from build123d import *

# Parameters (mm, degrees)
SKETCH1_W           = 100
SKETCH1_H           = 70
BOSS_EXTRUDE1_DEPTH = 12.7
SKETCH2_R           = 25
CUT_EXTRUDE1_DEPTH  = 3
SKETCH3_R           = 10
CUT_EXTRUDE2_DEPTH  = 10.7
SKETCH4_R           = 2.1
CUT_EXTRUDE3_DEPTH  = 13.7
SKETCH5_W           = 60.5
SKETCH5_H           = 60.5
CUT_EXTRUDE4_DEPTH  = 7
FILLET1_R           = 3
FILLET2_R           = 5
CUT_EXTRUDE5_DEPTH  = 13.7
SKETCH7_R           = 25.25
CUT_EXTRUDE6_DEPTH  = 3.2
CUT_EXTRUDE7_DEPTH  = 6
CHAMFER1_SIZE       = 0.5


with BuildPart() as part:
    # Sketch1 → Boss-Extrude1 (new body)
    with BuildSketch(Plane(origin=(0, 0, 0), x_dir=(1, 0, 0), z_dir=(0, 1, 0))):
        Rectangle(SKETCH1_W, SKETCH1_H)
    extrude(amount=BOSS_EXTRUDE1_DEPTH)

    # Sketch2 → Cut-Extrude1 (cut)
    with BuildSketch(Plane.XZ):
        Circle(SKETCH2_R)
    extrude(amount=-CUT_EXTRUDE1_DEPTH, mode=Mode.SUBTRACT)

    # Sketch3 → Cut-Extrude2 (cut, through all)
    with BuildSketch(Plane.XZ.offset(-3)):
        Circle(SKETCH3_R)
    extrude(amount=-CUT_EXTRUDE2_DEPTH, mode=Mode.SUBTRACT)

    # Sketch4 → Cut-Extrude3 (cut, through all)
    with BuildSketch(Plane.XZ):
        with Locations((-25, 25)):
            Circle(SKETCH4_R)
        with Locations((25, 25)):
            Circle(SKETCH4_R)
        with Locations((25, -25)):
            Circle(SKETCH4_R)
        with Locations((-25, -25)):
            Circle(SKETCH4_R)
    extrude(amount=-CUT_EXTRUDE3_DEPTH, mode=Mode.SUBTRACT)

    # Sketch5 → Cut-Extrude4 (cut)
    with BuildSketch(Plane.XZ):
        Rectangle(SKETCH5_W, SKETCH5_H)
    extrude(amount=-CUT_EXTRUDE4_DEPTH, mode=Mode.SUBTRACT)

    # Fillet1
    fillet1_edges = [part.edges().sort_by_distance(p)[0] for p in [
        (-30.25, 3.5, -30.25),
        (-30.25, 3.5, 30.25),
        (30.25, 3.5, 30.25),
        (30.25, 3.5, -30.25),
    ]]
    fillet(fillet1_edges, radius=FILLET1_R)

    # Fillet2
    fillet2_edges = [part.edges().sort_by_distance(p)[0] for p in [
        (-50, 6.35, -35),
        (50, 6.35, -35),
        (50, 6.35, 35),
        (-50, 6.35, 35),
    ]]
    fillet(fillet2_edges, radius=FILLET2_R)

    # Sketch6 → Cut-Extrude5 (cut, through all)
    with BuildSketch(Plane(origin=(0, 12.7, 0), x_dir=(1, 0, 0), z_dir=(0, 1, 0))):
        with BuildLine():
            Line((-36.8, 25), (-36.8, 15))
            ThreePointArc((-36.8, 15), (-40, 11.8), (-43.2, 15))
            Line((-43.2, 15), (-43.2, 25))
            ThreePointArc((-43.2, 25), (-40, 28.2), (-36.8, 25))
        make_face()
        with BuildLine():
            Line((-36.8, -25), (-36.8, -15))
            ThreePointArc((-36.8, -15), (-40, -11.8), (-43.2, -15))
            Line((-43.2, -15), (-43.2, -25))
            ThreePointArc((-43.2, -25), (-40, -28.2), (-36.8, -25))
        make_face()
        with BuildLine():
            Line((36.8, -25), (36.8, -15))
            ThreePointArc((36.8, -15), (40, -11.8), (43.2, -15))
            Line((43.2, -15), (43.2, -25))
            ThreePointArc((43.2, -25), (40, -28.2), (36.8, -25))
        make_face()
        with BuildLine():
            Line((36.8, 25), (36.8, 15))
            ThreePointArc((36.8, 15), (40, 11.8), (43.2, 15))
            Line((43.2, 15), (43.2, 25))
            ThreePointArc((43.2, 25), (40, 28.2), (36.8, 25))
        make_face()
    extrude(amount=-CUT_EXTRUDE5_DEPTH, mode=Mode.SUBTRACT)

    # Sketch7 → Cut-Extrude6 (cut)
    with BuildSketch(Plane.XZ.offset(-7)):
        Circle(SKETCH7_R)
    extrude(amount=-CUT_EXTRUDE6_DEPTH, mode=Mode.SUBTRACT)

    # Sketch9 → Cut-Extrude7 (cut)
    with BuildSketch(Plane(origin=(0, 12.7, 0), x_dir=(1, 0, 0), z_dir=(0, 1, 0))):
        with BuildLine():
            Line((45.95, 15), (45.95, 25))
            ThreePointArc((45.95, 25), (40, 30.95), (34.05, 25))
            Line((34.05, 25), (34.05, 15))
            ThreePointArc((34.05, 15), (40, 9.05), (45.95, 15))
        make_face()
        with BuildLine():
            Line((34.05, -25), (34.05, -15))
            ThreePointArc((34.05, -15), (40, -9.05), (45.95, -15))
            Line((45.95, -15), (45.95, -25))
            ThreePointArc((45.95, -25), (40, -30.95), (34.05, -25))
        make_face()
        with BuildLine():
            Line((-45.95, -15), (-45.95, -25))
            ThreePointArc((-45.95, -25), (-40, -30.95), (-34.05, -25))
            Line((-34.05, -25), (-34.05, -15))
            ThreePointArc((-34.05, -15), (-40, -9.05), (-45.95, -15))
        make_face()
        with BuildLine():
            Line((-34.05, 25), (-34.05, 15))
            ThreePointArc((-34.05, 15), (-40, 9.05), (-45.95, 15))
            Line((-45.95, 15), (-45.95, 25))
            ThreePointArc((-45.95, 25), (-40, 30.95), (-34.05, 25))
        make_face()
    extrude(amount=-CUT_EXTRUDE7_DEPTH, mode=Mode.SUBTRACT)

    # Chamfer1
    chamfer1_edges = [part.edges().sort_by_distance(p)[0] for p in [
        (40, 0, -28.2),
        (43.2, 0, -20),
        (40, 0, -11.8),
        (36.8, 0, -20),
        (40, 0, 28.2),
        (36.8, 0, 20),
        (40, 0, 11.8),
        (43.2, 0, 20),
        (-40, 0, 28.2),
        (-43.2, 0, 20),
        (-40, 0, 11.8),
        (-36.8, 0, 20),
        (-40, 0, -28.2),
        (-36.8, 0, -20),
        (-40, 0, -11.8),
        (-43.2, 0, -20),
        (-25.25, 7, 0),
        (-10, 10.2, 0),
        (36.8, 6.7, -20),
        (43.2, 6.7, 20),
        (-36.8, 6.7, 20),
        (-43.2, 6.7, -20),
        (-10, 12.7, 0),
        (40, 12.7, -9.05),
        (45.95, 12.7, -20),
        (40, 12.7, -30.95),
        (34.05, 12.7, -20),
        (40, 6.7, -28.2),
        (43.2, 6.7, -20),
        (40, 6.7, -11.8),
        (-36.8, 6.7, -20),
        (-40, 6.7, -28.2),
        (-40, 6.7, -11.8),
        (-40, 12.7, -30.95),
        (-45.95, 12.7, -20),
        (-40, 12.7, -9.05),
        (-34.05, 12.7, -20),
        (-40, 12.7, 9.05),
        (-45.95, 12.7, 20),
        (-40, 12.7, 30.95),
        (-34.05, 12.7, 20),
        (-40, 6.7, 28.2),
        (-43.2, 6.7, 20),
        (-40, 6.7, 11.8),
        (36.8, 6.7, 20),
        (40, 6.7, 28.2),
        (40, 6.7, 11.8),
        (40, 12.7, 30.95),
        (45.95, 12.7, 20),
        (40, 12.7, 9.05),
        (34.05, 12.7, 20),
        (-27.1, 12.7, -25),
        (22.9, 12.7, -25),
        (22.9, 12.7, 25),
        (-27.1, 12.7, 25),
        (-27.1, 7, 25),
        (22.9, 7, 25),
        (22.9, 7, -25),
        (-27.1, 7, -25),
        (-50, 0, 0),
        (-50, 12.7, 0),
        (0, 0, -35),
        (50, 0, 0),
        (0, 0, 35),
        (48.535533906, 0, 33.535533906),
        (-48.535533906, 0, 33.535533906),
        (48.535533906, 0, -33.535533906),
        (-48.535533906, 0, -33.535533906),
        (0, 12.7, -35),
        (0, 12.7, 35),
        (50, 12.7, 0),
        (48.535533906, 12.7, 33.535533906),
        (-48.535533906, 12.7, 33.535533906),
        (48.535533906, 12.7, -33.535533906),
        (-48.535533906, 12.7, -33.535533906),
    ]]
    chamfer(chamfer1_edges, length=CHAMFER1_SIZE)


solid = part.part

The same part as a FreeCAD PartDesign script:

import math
import FreeCAD as App
import Part
import Sketcher

V = App.Vector
Q = App.Units.Quantity


def edges_at(feature, points):
    """Names of the edges that pass closest to the given points."""
    edges = feature.Shape.Edges
    near = lambda p: min(range(len(edges)), key=lambda i: edges[i].distToShape(Part.Vertex(*p))[0])
    return sorted({f"Edge{near(p) + 1}" for p in points})


def add_polygon(sketch, points):
    """Adds a closed chain of lines whose ends are joined by coincident constraints."""
    first, n = sketch.GeometryCount, len(points)
    for a, b in zip(points, points[1:] + points[:1]):
        sketch.addGeometry(Part.LineSegment(App.Vector(*a, 0), App.Vector(*b, 0)), False)
    for i in range(n):
        sketch.addConstraint(Sketcher.Constraint("Coincident", first + i, 2, first + (i + 1) % n, 1))

doc = App.newDocument("Part")
params = doc.addObject("Spreadsheet::Sheet", "Params")
for row, (alias, value) in enumerate([
    ("sketch1_width", "100 mm"),
    ("sketch1_height", "70 mm"),
    ("pad1_length", "12.7 mm"),
    ("sketch2_diameter", "50 mm"),
    ("pocket1_length", "3 mm"),
    ("sketch3_diameter", "20 mm"),
    ("sketch4_diameter", "4.2 mm"),
    ("sketch5_width", "60.5 mm"),
    ("pocket4_length", "7 mm"),
    ("fillet_radius", "3 mm"),
    ("fillet2_radius", "5 mm"),
    ("sketch6_radius", "3.2 mm"),
    ("sketch6_height", "10 mm"),
    ("sketch7_diameter", "50.5 mm"),
    ("pocket6_length", "3.2 mm"),
    ("sketch8_height", "10 mm"),
    ("sketch8_radius", "5.95 mm"),
    ("pocket7_length", "6 mm"),
    ("chamfer_size", "0.5 mm"),
], start=1):
    params.set(f"A{row}", alias)
    params.set(f"B{row}", "=" + value)
    params.setAlias(f"B{row}", alias)

body = doc.addObject("PartDesign::Body", "Body")

sketch1 = body.newObject("Sketcher::SketchObject", "Sketch")
sketch1.AttachmentSupport = (doc.getObject("XZ_Plane"), [""])
sketch1.MapMode = "FlatFace"
add_polygon(sketch1, [(-50, -35), (-50, 35), (50, 35), (50, -35)])
sketch1.addConstraint([
    Sketcher.Constraint("Vertical", 0),
    Sketcher.Constraint("Horizontal", 1),
    Sketcher.Constraint("Vertical", 2),
    Sketcher.Constraint("Horizontal", 3),
    Sketcher.Constraint("Symmetric", 0, 2, 2, 2, -1, 1),
    Sketcher.Constraint("DistanceX", 1, 1, 1, 2, Q("100 mm")),
    Sketcher.Constraint("DistanceY", 0, 1, 0, 2, Q("70 mm")),
])
sketch1.setExpression("Constraints[9]", "Params.sketch1_width")
sketch1.setExpression("Constraints[10]", "Params.sketch1_height")
pad1 = body.newObject("PartDesign::Pad", "Pad")
pad1.Profile = sketch1
pad1.setExpression("Length", "Params.pad1_length")
pad1.Reversed = True

sketch2 = body.newObject("Sketcher::SketchObject", "Sketch001")
sketch2.AttachmentSupport = (doc.getObject("XZ_Plane"), [""])
sketch2.MapMode = "FlatFace"
sketch2.addGeometry(Part.Circle(V(0, 0, 0), V(0, 0, 1), 25), False)
sketch2.addConstraint([
    Sketcher.Constraint("Coincident", 0, 3, -1, 1),
    Sketcher.Constraint("Diameter", 0, Q("50 mm")),
])
sketch2.setExpression("Constraints[1]", "Params.sketch2_diameter")
pocket1 = body.newObject("PartDesign::Pocket", "Pocket")
pocket1.Profile = sketch2
pocket1.setExpression("Length", "Params.pocket1_length")

sketch3 = body.newObject("Sketcher::SketchObject", "Sketch002")
sketch3.AttachmentSupport = (doc.getObject("XZ_Plane"), [""])
sketch3.MapMode = "FlatFace"
sketch3.AttachmentOffset = App.Placement(V(0, 0, -3), App.Rotation())
sketch3.addGeometry(Part.Circle(V(0, 0, 0), V(0, 0, 1), 10), False)
sketch3.addConstraint([
    Sketcher.Constraint("Coincident", 0, 3, -1, 1),
    Sketcher.Constraint("Diameter", 0, Q("20 mm")),
])
sketch3.setExpression("Constraints[1]", "Params.sketch3_diameter")
pocket2 = body.newObject("PartDesign::Pocket", "Pocket001")
pocket2.Profile = sketch3
pocket2.Type = "ThroughAll"

sketch4 = body.newObject("Sketcher::SketchObject", "Sketch003")
sketch4.AttachmentSupport = (doc.getObject("XZ_Plane"), [""])
sketch4.MapMode = "FlatFace"
sketch4.addGeometry([
    Part.Circle(V(-25, 25, 0), V(0, 0, 1), 2.1),
    Part.Circle(V(25, 25, 0), V(0, 0, 1), 2.1),
    Part.Circle(V(25, -25, 0), V(0, 0, 1), 2.1),
    Part.Circle(V(-25, -25, 0), V(0, 0, 1), 2.1),
], False)
sketch4.addConstraint([
    Sketcher.Constraint("Equal", 0, 1),
    Sketcher.Constraint("Equal", 1, 2),
    Sketcher.Constraint("Equal", 2, 3),
    Sketcher.Constraint("Symmetric", 0, 3, 2, 3, -1, 1),
    Sketcher.Constraint("Symmetric", 1, 3, 3, 3, -1, 1),
    Sketcher.Constraint("Symmetric", 0, 3, 1, 3, -2),
    Sketcher.Constraint("Diameter", 0, Q("4.2 mm")),
    Sketcher.Constraint("DistanceX", 0, 3, -1, 1, Q("25 mm")),
    Sketcher.Constraint("DistanceY", -1, 1, 0, 3, Q("25 mm")),
])
sketch4.setExpression("Constraints[6]", "Params.sketch4_diameter")
pocket3 = body.newObject("PartDesign::Pocket", "Pocket002")
pocket3.Profile = sketch4
pocket3.Type = "ThroughAll"

sketch5 = body.newObject("Sketcher::SketchObject", "Sketch004")
sketch5.AttachmentSupport = (doc.getObject("XZ_Plane"), [""])
sketch5.MapMode = "FlatFace"
add_polygon(sketch5, [(-30, 30), (-30, -30), (30, -30), (30, 30)])
sketch5.addConstraint([
    Sketcher.Constraint("Vertical", 0),
    Sketcher.Constraint("Horizontal", 1),
    Sketcher.Constraint("Vertical", 2),
    Sketcher.Constraint("Horizontal", 3),
    Sketcher.Constraint("Symmetric", 0, 2, 2, 2, -1, 1),
    Sketcher.Constraint("Equal", 3, 0),
    Sketcher.Constraint("DistanceX", 1, 1, 1, 2, Q("60.5 mm")),
])
sketch5.setExpression("Constraints[10]", "Params.sketch5_width")
pocket4 = body.newObject("PartDesign::Pocket", "Pocket003")
pocket4.Profile = sketch5
pocket4.setExpression("Length", "Params.pocket4_length")
doc.recompute()

fillet = body.newObject("PartDesign::Fillet", "Fillet")
fillet.Base = (pocket4, edges_at(pocket4, [
    (-30.25, 3.5, -30.25),
    (-30.25, 3.5, 30.25),
    (30.25, 3.5, 30.25),
    (30.25, 3.5, -30.25),
]))
fillet.setExpression("Radius", "Params.fillet_radius")
doc.recompute()

fillet2 = body.newObject("PartDesign::Fillet", "Fillet001")
fillet2.Base = (fillet, edges_at(fillet, [
    (-50, 6.35, -35),
    (50, 6.35, -35),
    (50, 6.35, 35),
    (-50, 6.35, 35),
]))
fillet2.setExpression("Radius", "Params.fillet2_radius")

sketch6 = body.newObject("Sketcher::SketchObject", "Sketch005")
sketch6.AttachmentSupport = (doc.getObject("XZ_Plane"), [""])
sketch6.MapMode = "FlatFace"
sketch6.AttachmentOffset = App.Placement(V(0, 0, -12.7), App.Rotation())
sketch6.addGeometry([
    Part.LineSegment(V(-36.8, -15, 0), V(-36.8, -25, 0)),
    Part.ArcOfCircle(Part.Circle(V(-40, -25, 0), V(0, 0, 1), 3.2), math.radians(180), math.radians(360)),
    Part.LineSegment(V(-43.2, -25, 0), V(-43.2, -15, 0)),
    Part.ArcOfCircle(Part.Circle(V(-40, -15, 0), V(0, 0, 1), 3.2), math.radians(0), math.radians(180)),
    Part.LineSegment(V(-36.8, 25, 0), V(-36.8, 15, 0)),
    Part.ArcOfCircle(Part.Circle(V(-40, 15, 0), V(0, 0, 1), 3.2), math.radians(180), math.radians(360)),
    Part.LineSegment(V(-43.2, 15, 0), V(-43.2, 25, 0)),
    Part.ArcOfCircle(Part.Circle(V(-40, 25, 0), V(0, 0, 1), 3.2), math.radians(0), math.radians(180)),
    Part.LineSegment(V(36.8, 15, 0), V(36.8, 25, 0)),
    Part.ArcOfCircle(Part.Circle(V(40, 25, 0), V(0, 0, 1), 3.2), math.radians(0), math.radians(180)),
    Part.LineSegment(V(43.2, 25, 0), V(43.2, 15, 0)),
    Part.ArcOfCircle(Part.Circle(V(40, 15, 0), V(0, 0, 1), 3.2), math.radians(180), math.radians(360)),
    Part.LineSegment(V(36.8, -25, 0), V(36.8, -15, 0)),
    Part.ArcOfCircle(Part.Circle(V(40, -15, 0), V(0, 0, 1), 3.2), math.radians(0), math.radians(180)),
    Part.LineSegment(V(43.2, -15, 0), V(43.2, -25, 0)),
    Part.ArcOfCircle(Part.Circle(V(40, -25, 0), V(0, 0, 1), 3.2), math.radians(180), math.radians(360)),
], False)
sketch6.addConstraint([
    Sketcher.Constraint("Tangent", 0, 2, 1, 2),
    Sketcher.Constraint("Tangent", 1, 1, 2, 1),
    Sketcher.Constraint("Tangent", 2, 2, 3, 2),
    Sketcher.Constraint("Tangent", 3, 1, 0, 1),
    Sketcher.Constraint("Tangent", 4, 2, 5, 2),
    Sketcher.Constraint("Tangent", 5, 1, 6, 1),
    Sketcher.Constraint("Tangent", 6, 2, 7, 2),
    Sketcher.Constraint("Tangent", 7, 1, 4, 1),
    Sketcher.Constraint("Tangent", 8, 2, 9, 2),
    Sketcher.Constraint("Tangent", 9, 1, 10, 1),
    Sketcher.Constraint("Tangent", 10, 2, 11, 2),
    Sketcher.Constraint("Tangent", 11, 1, 8, 1),
    Sketcher.Constraint("Tangent", 12, 2, 13, 2),
    Sketcher.Constraint("Tangent", 13, 1, 14, 1),
    Sketcher.Constraint("Tangent", 14, 2, 15, 2),
    Sketcher.Constraint("Tangent", 15, 1, 12, 1),
    Sketcher.Constraint("Vertical", 0),
    Sketcher.Constraint("Vertical", 2),
    Sketcher.Constraint("Vertical", 4),
    Sketcher.Constraint("Vertical", 6),
    Sketcher.Constraint("Vertical", 8),
    Sketcher.Constraint("Vertical", 10),
    Sketcher.Constraint("Vertical", 12),
    Sketcher.Constraint("Vertical", 14),
    Sketcher.Constraint("Equal", 3, 5),
    Sketcher.Constraint("Equal", 7, 9),
    Sketcher.Constraint("Equal", 11, 13),
    Sketcher.Constraint("Symmetric", 1, 3, 9, 3, -1, 1),
    Sketcher.Constraint("Symmetric", 5, 3, 13, 3, -1, 1),
    Sketcher.Constraint("Symmetric", 7, 3, 9, 3, -2),
    Sketcher.Constraint("Horizontal", 5, 3, 11, 3),
    Sketcher.Constraint("Horizontal", 3, 3, 13, 3),
    Sketcher.Constraint("Horizontal", 1, 3, 15, 3),
    Sketcher.Constraint("Radius", 1, Q("3.2 mm")),
    Sketcher.Constraint("DistanceY", 0, 2, 0, 1, Q("10 mm")),
    Sketcher.Constraint("DistanceX", 1, 3, -1, 1, Q("40 mm")),
    Sketcher.Constraint("DistanceY", 1, 3, -1, 1, Q("25 mm")),
])
sketch6.setExpression("Constraints[33]", "Params.sketch6_radius")
sketch6.setExpression("Constraints[34]", "Params.sketch6_height")
pocket5 = body.newObject("PartDesign::Pocket", "Pocket004")
pocket5.Profile = sketch6
pocket5.Type = "ThroughAll"
pocket5.Reversed = True

sketch7 = body.newObject("Sketcher::SketchObject", "Sketch006")
sketch7.AttachmentSupport = (doc.getObject("XZ_Plane"), [""])
sketch7.MapMode = "FlatFace"
sketch7.AttachmentOffset = App.Placement(V(0, 0, -7), App.Rotation())
sketch7.addGeometry(Part.Circle(V(0, 0, 0), V(0, 0, 1), 25), False)
sketch7.addConstraint([
    Sketcher.Constraint("Coincident", 0, 3, -1, 1),
    Sketcher.Constraint("Diameter", 0, Q("50.5 mm")),
])
sketch7.setExpression("Constraints[1]", "Params.sketch7_diameter")
pocket6 = body.newObject("PartDesign::Pocket", "Pocket005")
pocket6.Profile = sketch7
pocket6.setExpression("Length", "Params.pocket6_length")

sketch8 = body.newObject("Sketcher::SketchObject", "Sketch007")
sketch8.AttachmentSupport = (doc.getObject("XZ_Plane"), [""])
sketch8.MapMode = "FlatFace"
sketch8.AttachmentOffset = App.Placement(V(0, 0, -12.7), App.Rotation())
sketch8.addGeometry([
    Part.LineSegment(V(46, -15, 0), V(46, -25, 0)),
    Part.ArcOfCircle(Part.Circle(V(40, -25, 0), V(0, 0, 1), 6), math.radians(180), math.radians(360)),
    Part.LineSegment(V(34, -25, 0), V(34, -15, 0)),
    Part.ArcOfCircle(Part.Circle(V(40, -15, 0), V(0, 0, 1), 6), math.radians(0), math.radians(180)),
    Part.LineSegment(V(34, 15, 0), V(34, 25, 0)),
    Part.ArcOfCircle(Part.Circle(V(40, 25, 0), V(0, 0, 1), 6), math.radians(0), math.radians(180)),
    Part.LineSegment(V(46, 25, 0), V(46, 15, 0)),
    Part.ArcOfCircle(Part.Circle(V(40, 15, 0), V(0, 0, 1), 6), math.radians(180), math.radians(360)),
    Part.LineSegment(V(-46, 15, 0), V(-46, 25, 0)),
    Part.ArcOfCircle(Part.Circle(V(-40, 25, 0), V(0, 0, 1), 6), math.radians(0), math.radians(180)),
    Part.LineSegment(V(-34, 25, 0), V(-34, 15, 0)),
    Part.ArcOfCircle(Part.Circle(V(-40, 15, 0), V(0, 0, 1), 6), math.radians(180), math.radians(360)),
    Part.LineSegment(V(-34, -15, 0), V(-34, -25, 0)),
    Part.ArcOfCircle(Part.Circle(V(-40, -25, 0), V(0, 0, 1), 6), math.radians(180), math.radians(360)),
    Part.LineSegment(V(-46, -25, 0), V(-46, -15, 0)),
    Part.ArcOfCircle(Part.Circle(V(-40, -15, 0), V(0, 0, 1), 6), math.radians(0), math.radians(180)),
], False)
sketch8.addConstraint([
    Sketcher.Constraint("Tangent", 0, 2, 1, 2),
    Sketcher.Constraint("Tangent", 1, 1, 2, 1),
    Sketcher.Constraint("Tangent", 2, 2, 3, 2),
    Sketcher.Constraint("Tangent", 3, 1, 0, 1),
    Sketcher.Constraint("Tangent", 4, 2, 5, 2),
    Sketcher.Constraint("Tangent", 5, 1, 6, 1),
    Sketcher.Constraint("Tangent", 6, 2, 7, 2),
    Sketcher.Constraint("Tangent", 7, 1, 4, 1),
    Sketcher.Constraint("Tangent", 8, 2, 9, 2),
    Sketcher.Constraint("Tangent", 9, 1, 10, 1),
    Sketcher.Constraint("Tangent", 10, 2, 11, 2),
    Sketcher.Constraint("Tangent", 11, 1, 8, 1),
    Sketcher.Constraint("Tangent", 12, 2, 13, 2),
    Sketcher.Constraint("Tangent", 13, 1, 14, 1),
    Sketcher.Constraint("Tangent", 14, 2, 15, 2),
    Sketcher.Constraint("Tangent", 15, 1, 12, 1),
    Sketcher.Constraint("Vertical", 0),
    Sketcher.Constraint("Vertical", 2),
    Sketcher.Constraint("Vertical", 4),
    Sketcher.Constraint("Vertical", 6),
    Sketcher.Constraint("Vertical", 8),
    Sketcher.Constraint("Vertical", 10),
    Sketcher.Constraint("Vertical", 12),
    Sketcher.Constraint("Vertical", 14),
    Sketcher.Constraint("Equal", 3, 5),
    Sketcher.Constraint("Equal", 7, 9),
    Sketcher.Constraint("Equal", 11, 13),
    Sketcher.Constraint("Symmetric", 1, 3, 9, 3, -1, 1),
    Sketcher.Constraint("Symmetric", 5, 3, 13, 3, -1, 1),
    Sketcher.Constraint("Symmetric", 5, 3, 9, 3, -2),
    Sketcher.Constraint("Horizontal", 7, 3, 11, 3),
    Sketcher.Constraint("Horizontal", 3, 3, 15, 3),
    Sketcher.Constraint("Equal", 2, 4),
    Sketcher.Constraint("DistanceY", 0, 2, 0, 1, Q("10 mm")),
    Sketcher.Constraint("Radius", 1, Q("5.95 mm")),
    Sketcher.Constraint("DistanceX", -1, 1, 1, 3, Q("40 mm")),
    Sketcher.Constraint("DistanceY", 1, 3, -1, 1, Q("25 mm")),
])
sketch8.setExpression("Constraints[33]", "Params.sketch8_height")
sketch8.setExpression("Constraints[34]", "Params.sketch8_radius")
pocket7 = body.newObject("PartDesign::Pocket", "Pocket006")
pocket7.Profile = sketch8
pocket7.setExpression("Length", "Params.pocket7_length")
pocket7.Reversed = True
doc.recompute()

chamfer = body.newObject("PartDesign::Chamfer", "Chamfer")
chamfer.Base = (pocket7, edges_at(pocket7, [
    (40, 0, -28.2),
    (43.2, 0, -20),
    (40, 0, -11.8),
    (36.8, 0, -20),
    (40, 0, 28.2),
    (36.8, 0, 20),
    (40, 0, 11.8),
    (43.2, 0, 20),
    (-40, 0, 28.2),
    (-43.2, 0, 20),
    (-40, 0, 11.8),
    (-36.8, 0, 20),
    (-40, 0, -28.2),
    (-36.8, 0, -20),
    (-40, 0, -11.8),
    (-43.2, 0, -20),
    (-25.25, 7, 0),
    (-10, 10.2, 0),
    (36.8, 6.7, -20),
    (43.2, 6.7, 20),
    (-36.8, 6.7, 20),
    (-43.2, 6.7, -20),
    (-10, 12.7, 0),
    (40, 12.7, -9.05),
    (45.95, 12.7, -20),
    (40, 12.7, -30.95),
    (34.05, 12.7, -20),
    (40, 6.7, -28.2),
    (43.2, 6.7, -20),
    (40, 6.7, -11.8),
    (-36.8, 6.7, -20),
    (-40, 6.7, -28.2),
    (-40, 6.7, -11.8),
    (-40, 12.7, -30.95),
    (-45.95, 12.7, -20),
    (-40, 12.7, -9.05),
    (-34.05, 12.7, -20),
    (-40, 12.7, 9.05),
    (-45.95, 12.7, 20),
    (-40, 12.7, 30.95),
    (-34.05, 12.7, 20),
    (-40, 6.7, 28.2),
    (-43.2, 6.7, 20),
    (-40, 6.7, 11.8),
    (36.8, 6.7, 20),
    (40, 6.7, 28.2),
    (40, 6.7, 11.8),
    (40, 12.7, 30.95),
    (45.95, 12.7, 20),
    (40, 12.7, 9.05),
    (34.05, 12.7, 20),
    (-27.1, 12.7, -25),
    (22.9, 12.7, -25),
    (22.9, 12.7, 25),
    (-27.1, 12.7, 25),
    (-27.1, 7, 25),
    (22.9, 7, 25),
    (22.9, 7, -25),
    (-27.1, 7, -25),
    (-50, 0, 0),
    (-50, 12.7, 0),
    (0, 0, -35),
    (50, 0, 0),
    (0, 0, 35),
    (48.536, 0, 33.536),
    (-48.536, 0, 33.536),
    (48.536, 0, -33.536),
    (-48.536, 0, -33.536),
    (0, 12.7, -35),
    (0, 12.7, 35),
    (50, 12.7, 0),
    (48.536, 12.7, 33.536),
    (-48.536, 12.7, 33.536),
    (48.536, 12.7, -33.536),
    (-48.536, 12.7, -33.536),
]))
chamfer.setExpression("Size", "Params.chamfer_size")

doc.recompute()
